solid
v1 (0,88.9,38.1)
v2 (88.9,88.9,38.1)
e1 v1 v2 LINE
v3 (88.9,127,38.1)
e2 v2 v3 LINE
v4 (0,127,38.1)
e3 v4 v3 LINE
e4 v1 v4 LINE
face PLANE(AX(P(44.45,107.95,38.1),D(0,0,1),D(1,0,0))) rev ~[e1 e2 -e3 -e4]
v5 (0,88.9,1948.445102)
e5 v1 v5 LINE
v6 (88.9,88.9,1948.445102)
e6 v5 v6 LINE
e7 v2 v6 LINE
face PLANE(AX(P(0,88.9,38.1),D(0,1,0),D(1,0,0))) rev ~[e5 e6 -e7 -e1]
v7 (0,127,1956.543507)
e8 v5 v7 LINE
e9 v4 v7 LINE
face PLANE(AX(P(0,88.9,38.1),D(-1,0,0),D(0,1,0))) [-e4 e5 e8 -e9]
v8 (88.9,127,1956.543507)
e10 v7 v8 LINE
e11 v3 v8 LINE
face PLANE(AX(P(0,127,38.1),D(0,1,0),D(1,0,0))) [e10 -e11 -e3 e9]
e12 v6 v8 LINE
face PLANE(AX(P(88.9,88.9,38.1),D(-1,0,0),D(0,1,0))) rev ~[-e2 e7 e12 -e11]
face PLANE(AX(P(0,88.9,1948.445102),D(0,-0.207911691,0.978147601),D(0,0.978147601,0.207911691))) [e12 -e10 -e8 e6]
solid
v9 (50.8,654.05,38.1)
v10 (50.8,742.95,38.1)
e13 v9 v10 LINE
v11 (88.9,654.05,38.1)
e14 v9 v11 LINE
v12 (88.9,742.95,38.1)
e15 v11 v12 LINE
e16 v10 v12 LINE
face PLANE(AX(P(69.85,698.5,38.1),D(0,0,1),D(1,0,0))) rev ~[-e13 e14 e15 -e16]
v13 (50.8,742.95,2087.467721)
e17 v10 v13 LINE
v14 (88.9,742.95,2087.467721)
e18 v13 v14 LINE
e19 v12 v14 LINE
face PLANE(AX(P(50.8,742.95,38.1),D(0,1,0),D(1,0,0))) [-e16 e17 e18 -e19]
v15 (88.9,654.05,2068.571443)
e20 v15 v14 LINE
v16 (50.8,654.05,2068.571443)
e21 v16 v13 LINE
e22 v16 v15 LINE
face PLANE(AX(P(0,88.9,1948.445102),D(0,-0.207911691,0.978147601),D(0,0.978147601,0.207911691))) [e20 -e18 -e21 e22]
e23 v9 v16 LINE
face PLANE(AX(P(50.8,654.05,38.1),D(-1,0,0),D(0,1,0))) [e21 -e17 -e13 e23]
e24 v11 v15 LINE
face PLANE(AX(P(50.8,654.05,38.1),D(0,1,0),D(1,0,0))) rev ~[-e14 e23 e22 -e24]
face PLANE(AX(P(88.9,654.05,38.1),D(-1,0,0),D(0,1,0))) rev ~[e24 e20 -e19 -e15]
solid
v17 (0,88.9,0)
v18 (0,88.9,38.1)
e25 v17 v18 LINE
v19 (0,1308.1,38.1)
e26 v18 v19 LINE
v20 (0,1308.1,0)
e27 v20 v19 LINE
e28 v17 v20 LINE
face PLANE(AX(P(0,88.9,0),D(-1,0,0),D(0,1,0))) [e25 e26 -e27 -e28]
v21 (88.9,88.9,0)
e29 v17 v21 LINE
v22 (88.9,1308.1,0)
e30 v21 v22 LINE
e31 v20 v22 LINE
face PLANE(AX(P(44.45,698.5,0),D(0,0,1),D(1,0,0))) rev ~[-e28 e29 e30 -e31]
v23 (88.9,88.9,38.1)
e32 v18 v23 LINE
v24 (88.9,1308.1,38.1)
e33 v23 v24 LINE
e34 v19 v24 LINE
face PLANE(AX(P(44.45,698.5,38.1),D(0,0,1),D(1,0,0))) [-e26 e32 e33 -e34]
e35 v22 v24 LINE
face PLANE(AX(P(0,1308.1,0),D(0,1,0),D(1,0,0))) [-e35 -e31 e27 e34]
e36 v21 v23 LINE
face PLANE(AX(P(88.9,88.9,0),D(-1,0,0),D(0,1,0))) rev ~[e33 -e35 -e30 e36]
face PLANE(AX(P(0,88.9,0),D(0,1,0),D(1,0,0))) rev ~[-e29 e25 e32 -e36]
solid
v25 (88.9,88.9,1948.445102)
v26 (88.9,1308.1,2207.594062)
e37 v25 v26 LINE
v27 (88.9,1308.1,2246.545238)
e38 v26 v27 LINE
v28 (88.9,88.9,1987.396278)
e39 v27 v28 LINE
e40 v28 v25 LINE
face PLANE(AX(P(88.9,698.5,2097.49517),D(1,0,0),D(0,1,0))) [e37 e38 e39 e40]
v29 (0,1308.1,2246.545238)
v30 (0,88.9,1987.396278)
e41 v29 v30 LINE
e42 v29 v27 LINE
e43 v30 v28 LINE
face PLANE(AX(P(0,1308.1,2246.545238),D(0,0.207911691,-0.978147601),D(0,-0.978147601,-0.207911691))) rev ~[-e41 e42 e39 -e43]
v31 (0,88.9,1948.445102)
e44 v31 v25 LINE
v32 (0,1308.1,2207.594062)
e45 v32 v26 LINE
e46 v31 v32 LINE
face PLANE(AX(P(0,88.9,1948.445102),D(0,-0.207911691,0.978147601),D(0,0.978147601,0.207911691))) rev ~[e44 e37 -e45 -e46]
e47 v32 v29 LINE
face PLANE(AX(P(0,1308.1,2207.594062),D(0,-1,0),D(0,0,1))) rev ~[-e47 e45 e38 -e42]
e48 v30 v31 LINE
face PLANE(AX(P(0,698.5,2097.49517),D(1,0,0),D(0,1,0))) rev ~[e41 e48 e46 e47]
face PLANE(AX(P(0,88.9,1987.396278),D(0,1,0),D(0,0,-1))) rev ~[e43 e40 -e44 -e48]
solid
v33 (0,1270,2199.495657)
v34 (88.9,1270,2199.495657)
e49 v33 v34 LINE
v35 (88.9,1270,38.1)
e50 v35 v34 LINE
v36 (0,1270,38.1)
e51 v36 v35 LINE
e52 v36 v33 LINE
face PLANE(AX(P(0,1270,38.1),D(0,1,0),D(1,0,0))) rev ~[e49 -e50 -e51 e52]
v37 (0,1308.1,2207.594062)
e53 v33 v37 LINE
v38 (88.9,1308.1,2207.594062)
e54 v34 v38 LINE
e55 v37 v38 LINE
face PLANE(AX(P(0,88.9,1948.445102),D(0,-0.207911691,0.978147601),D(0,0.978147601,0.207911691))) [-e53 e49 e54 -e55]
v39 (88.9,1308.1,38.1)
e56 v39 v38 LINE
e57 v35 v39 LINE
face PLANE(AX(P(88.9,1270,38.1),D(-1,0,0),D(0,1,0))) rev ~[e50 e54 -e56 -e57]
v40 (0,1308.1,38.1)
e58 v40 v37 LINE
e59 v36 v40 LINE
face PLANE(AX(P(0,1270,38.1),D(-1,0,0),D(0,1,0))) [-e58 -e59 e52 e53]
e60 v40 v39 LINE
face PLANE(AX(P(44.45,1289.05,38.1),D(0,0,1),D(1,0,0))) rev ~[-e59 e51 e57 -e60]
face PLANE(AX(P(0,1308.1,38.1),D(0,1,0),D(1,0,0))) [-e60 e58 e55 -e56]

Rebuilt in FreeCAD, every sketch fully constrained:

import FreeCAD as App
import Part
import Sketcher
from FreeCAD import Vector
Q = App.Units.Quantity


def add_polygon(sketch, points):
    """Adds a closed chain of lines whose ends are joined by coincident constraints."""
    first, n = sketch.GeometryCount, len(points)
    for a, b in zip(points, points[1:] + points[:1]):
        sketch.addGeometry(Part.LineSegment(App.Vector(*a, 0), App.Vector(*b, 0)), False)
    for i in range(n):
        sketch.addConstraint(Sketcher.Constraint("Coincident", first + i, 2, first + (i + 1) % n, 1))

doc = App.newDocument("Part")
body = doc.addObject("PartDesign::Body", "Body")

# Sketch on XY plane
sketch1 = doc.addObject("Sketcher::SketchObject", "Sketch")
body.addObject(sketch1)
sketch1.AttachmentSupport = (doc.XY_Plane, [""])
sketch1.MapMode = "FlatFace"
add_polygon(sketch1, [(0, 1308), (0, 89), (89, 89), (89, 1308)])  # lines 0-3
sketch1.addConstraint(Sketcher.Constraint("Vertical", 0))
sketch1.addConstraint(Sketcher.Constraint("Horizontal", 1))
sketch1.addConstraint(Sketcher.Constraint("Vertical", 2))
sketch1.addConstraint(Sketcher.Constraint("Horizontal", 3))
sketch1.addConstraint(Sketcher.Constraint("PointOnObject", 0, 2, -2))
sketch1.addConstraint(Sketcher.Constraint("DistanceY", 0, 2, 0, 1, Q("48 in")))
sketch1.addConstraint(Sketcher.Constraint("DistanceX", 1, 1, 1, 2, Q("3.5 in")))
sketch1.addConstraint(Sketcher.Constraint("DistanceY", -1, 1, 0, 2, Q("3.5 in")))
pad1 = doc.addObject("PartDesign::Pad", "Pad")
body.addObject(pad1)
pad1.Profile = sketch1
pad1.Length = Q("1.5 in")
body2 = doc.addObject("PartDesign::Body", "Body001")
body2.AllowCompound = True

# Sketch on XY plane
sketch2 = doc.addObject("Sketcher::SketchObject", "Sketch001")
body2.addObject(sketch2)
sketch2.AttachmentSupport = (doc.getObject("XY_Plane001"), [""])
sketch2.MapMode = "FlatFace"
sketch2.AttachmentOffset = App.Placement(Vector(0, 0, 1.5 * 25.4), App.Rotation())
add_polygon(sketch2, [(0, 127), (0, 89), (89, 89), (89, 127)])  # lines 0-3
add_polygon(sketch2, [(0, 1308), (0, 1270), (89, 1270), (89, 1308)])  # lines 4-7
add_polygon(sketch2, [(51, 743), (51, 654), (89, 654), (89, 743)])  # lines 8-11
sketch2.addConstraint(Sketcher.Constraint("Vertical", 0))
sketch2.addConstraint(Sketcher.Constraint("Horizontal", 1))
sketch2.addConstraint(Sketcher.Constraint("Vertical", 2))
sketch2.addConstraint(Sketcher.Constraint("Horizontal", 3))
sketch2.addConstraint(Sketcher.Constraint("Vertical", 4))
sketch2.addConstraint(Sketcher.Constraint("Horizontal", 5))
sketch2.addConstraint(Sketcher.Constraint("Vertical", 6))
sketch2.addConstraint(Sketcher.Constraint("Horizontal", 7))
sketch2.addConstraint(Sketcher.Constraint("Vertical", 8))
sketch2.addConstraint(Sketcher.Constraint("Horizontal", 9))
sketch2.addConstraint(Sketcher.Constraint("Vertical", 10))
sketch2.addConstraint(Sketcher.Constraint("Horizontal", 11))
sketch2.addConstraint(Sketcher.Constraint("PointOnObject", 0, 2, -2))
sketch2.addConstraint(Sketcher.Constraint("PointOnObject", 4, 2, -2))
sketch2.addConstraint(Sketcher.Constraint("Vertical", 2, 2, 5, 2))
sketch2.addConstraint(Sketcher.Constraint("Vertical", 6, 2, 9, 2))
sketch2.addConstraint(Sketcher.Constraint("Equal", 11, 0))
sketch2.addConstraint(Sketcher.Constraint("Equal", 2, 4))
sketch2.addConstraint(Sketcher.Constraint("Equal", 7, 8))
sketch2.addConstraint(Sketcher.Constraint("DistanceX", 1, 1, 1, 2, Q("3.5 in")))
sketch2.addConstraint(Sketcher.Constraint("DistanceX", 9, 1, 9, 2, Q("1.5 in")))
sketch2.addConstraint(Sketcher.Constraint("DistanceY", -1, 1, 2, 2, Q("5 in")))
sketch2.addConstraint(Sketcher.Constraint("DistanceY", -1, 1, 4, 2, Q("50 in")))
sketch2.addConstraint(Sketcher.Constraint("DistanceY", -1, 1, 8, 2, Q("25.75 in")))
pad2 = doc.addObject("PartDesign::Pad", "Pad001")
body2.addObject(pad2)
pad2.Profile = sketch2
pad2.Length = Q("100 in")

# Sketch on YZ plane
sketch3 = doc.addObject("Sketcher::SketchObject", "Sketch002")
body2.addObject(sketch3)
sketch3.AttachmentSupport = (doc.getObject("YZ_Plane001"), [""])
sketch3.MapMode = "FlatFace"
add_polygon(sketch3, [(1308, 2578), (89, 2578), (89, 1948), (1308, 2208)])  # lines 0-3
sketch3.addConstraint(Sketcher.Constraint("Horizontal", 0))
sketch3.addConstraint(Sketcher.Constraint("Vertical", 1))
sketch3.addConstraint(Sketcher.Constraint("Vertical", 3))
sketch3.addConstraint(Sketcher.Constraint("DistanceX", 0, 2, 0, 1, Q("48 in")))
sketch3.addConstraint(Sketcher.Constraint("Angle", 2, Q("12 deg")))
sketch3.addConstraint(Sketcher.Constraint("DistanceX", -1, 1, 0, 2, Q("3.5 in")))
sketch3.addConstraint(Sketcher.Constraint("DistanceY", -1, 1, 0, 2, Q("101.5 in")))
sketch3.addConstraint(Sketcher.Constraint("DistanceY", 1, 2, 1, 1, 629.654898))
pocket1 = doc.addObject("PartDesign::Pocket", "Pocket")
body2.addObject(pocket1)
pocket1.Profile = sketch3
pocket1.Type = "ThroughAll"
pocket1.Reversed = True
body3 = doc.addObject("PartDesign::Body", "Body002")

# Sketch on YZ plane
sketch4 = doc.addObject("Sketcher::SketchObject", "Sketch003")
body3.addObject(sketch4)
sketch4.AttachmentSupport = (doc.getObject("YZ_Plane002"), [""])
sketch4.MapMode = "FlatFace"
add_polygon(sketch4, [(89, 1987), (89, 1948), (1308, 2208), (1308, 2247)])  # lines 0-3
sketch4.addConstraint(Sketcher.Constraint("Vertical", 0))
sketch4.addConstraint(Sketcher.Constraint("Vertical", 2))
sketch4.addConstraint(Sketcher.Constraint("Parallel", 1, 3))
sketch4.addConstraint(Sketcher.Constraint("Angle", 1, Q("12 deg")))
sketch4.addConstraint(Sketcher.Constraint("DistanceX", 0, 2, 1, 2, Q("48 in")))
sketch4.addConstraint(Sketcher.Constraint("DistanceX", -1, 1, 0, 2, Q("3.5 in")))
sketch4.addConstraint(Sketcher.Constraint("DistanceY", -1, 1, 0, 2, 1948.445102))
sketch4.addConstraint(Sketcher.Constraint("DistanceY", 0, 2, 0, 1, 38.951176))
pad3 = doc.addObject("PartDesign::Pad", "Pad002")
body3.addObject(pad3)
pad3.Profile = sketch4
pad3.Length = Q("3.5 in")

doc.recompute()
